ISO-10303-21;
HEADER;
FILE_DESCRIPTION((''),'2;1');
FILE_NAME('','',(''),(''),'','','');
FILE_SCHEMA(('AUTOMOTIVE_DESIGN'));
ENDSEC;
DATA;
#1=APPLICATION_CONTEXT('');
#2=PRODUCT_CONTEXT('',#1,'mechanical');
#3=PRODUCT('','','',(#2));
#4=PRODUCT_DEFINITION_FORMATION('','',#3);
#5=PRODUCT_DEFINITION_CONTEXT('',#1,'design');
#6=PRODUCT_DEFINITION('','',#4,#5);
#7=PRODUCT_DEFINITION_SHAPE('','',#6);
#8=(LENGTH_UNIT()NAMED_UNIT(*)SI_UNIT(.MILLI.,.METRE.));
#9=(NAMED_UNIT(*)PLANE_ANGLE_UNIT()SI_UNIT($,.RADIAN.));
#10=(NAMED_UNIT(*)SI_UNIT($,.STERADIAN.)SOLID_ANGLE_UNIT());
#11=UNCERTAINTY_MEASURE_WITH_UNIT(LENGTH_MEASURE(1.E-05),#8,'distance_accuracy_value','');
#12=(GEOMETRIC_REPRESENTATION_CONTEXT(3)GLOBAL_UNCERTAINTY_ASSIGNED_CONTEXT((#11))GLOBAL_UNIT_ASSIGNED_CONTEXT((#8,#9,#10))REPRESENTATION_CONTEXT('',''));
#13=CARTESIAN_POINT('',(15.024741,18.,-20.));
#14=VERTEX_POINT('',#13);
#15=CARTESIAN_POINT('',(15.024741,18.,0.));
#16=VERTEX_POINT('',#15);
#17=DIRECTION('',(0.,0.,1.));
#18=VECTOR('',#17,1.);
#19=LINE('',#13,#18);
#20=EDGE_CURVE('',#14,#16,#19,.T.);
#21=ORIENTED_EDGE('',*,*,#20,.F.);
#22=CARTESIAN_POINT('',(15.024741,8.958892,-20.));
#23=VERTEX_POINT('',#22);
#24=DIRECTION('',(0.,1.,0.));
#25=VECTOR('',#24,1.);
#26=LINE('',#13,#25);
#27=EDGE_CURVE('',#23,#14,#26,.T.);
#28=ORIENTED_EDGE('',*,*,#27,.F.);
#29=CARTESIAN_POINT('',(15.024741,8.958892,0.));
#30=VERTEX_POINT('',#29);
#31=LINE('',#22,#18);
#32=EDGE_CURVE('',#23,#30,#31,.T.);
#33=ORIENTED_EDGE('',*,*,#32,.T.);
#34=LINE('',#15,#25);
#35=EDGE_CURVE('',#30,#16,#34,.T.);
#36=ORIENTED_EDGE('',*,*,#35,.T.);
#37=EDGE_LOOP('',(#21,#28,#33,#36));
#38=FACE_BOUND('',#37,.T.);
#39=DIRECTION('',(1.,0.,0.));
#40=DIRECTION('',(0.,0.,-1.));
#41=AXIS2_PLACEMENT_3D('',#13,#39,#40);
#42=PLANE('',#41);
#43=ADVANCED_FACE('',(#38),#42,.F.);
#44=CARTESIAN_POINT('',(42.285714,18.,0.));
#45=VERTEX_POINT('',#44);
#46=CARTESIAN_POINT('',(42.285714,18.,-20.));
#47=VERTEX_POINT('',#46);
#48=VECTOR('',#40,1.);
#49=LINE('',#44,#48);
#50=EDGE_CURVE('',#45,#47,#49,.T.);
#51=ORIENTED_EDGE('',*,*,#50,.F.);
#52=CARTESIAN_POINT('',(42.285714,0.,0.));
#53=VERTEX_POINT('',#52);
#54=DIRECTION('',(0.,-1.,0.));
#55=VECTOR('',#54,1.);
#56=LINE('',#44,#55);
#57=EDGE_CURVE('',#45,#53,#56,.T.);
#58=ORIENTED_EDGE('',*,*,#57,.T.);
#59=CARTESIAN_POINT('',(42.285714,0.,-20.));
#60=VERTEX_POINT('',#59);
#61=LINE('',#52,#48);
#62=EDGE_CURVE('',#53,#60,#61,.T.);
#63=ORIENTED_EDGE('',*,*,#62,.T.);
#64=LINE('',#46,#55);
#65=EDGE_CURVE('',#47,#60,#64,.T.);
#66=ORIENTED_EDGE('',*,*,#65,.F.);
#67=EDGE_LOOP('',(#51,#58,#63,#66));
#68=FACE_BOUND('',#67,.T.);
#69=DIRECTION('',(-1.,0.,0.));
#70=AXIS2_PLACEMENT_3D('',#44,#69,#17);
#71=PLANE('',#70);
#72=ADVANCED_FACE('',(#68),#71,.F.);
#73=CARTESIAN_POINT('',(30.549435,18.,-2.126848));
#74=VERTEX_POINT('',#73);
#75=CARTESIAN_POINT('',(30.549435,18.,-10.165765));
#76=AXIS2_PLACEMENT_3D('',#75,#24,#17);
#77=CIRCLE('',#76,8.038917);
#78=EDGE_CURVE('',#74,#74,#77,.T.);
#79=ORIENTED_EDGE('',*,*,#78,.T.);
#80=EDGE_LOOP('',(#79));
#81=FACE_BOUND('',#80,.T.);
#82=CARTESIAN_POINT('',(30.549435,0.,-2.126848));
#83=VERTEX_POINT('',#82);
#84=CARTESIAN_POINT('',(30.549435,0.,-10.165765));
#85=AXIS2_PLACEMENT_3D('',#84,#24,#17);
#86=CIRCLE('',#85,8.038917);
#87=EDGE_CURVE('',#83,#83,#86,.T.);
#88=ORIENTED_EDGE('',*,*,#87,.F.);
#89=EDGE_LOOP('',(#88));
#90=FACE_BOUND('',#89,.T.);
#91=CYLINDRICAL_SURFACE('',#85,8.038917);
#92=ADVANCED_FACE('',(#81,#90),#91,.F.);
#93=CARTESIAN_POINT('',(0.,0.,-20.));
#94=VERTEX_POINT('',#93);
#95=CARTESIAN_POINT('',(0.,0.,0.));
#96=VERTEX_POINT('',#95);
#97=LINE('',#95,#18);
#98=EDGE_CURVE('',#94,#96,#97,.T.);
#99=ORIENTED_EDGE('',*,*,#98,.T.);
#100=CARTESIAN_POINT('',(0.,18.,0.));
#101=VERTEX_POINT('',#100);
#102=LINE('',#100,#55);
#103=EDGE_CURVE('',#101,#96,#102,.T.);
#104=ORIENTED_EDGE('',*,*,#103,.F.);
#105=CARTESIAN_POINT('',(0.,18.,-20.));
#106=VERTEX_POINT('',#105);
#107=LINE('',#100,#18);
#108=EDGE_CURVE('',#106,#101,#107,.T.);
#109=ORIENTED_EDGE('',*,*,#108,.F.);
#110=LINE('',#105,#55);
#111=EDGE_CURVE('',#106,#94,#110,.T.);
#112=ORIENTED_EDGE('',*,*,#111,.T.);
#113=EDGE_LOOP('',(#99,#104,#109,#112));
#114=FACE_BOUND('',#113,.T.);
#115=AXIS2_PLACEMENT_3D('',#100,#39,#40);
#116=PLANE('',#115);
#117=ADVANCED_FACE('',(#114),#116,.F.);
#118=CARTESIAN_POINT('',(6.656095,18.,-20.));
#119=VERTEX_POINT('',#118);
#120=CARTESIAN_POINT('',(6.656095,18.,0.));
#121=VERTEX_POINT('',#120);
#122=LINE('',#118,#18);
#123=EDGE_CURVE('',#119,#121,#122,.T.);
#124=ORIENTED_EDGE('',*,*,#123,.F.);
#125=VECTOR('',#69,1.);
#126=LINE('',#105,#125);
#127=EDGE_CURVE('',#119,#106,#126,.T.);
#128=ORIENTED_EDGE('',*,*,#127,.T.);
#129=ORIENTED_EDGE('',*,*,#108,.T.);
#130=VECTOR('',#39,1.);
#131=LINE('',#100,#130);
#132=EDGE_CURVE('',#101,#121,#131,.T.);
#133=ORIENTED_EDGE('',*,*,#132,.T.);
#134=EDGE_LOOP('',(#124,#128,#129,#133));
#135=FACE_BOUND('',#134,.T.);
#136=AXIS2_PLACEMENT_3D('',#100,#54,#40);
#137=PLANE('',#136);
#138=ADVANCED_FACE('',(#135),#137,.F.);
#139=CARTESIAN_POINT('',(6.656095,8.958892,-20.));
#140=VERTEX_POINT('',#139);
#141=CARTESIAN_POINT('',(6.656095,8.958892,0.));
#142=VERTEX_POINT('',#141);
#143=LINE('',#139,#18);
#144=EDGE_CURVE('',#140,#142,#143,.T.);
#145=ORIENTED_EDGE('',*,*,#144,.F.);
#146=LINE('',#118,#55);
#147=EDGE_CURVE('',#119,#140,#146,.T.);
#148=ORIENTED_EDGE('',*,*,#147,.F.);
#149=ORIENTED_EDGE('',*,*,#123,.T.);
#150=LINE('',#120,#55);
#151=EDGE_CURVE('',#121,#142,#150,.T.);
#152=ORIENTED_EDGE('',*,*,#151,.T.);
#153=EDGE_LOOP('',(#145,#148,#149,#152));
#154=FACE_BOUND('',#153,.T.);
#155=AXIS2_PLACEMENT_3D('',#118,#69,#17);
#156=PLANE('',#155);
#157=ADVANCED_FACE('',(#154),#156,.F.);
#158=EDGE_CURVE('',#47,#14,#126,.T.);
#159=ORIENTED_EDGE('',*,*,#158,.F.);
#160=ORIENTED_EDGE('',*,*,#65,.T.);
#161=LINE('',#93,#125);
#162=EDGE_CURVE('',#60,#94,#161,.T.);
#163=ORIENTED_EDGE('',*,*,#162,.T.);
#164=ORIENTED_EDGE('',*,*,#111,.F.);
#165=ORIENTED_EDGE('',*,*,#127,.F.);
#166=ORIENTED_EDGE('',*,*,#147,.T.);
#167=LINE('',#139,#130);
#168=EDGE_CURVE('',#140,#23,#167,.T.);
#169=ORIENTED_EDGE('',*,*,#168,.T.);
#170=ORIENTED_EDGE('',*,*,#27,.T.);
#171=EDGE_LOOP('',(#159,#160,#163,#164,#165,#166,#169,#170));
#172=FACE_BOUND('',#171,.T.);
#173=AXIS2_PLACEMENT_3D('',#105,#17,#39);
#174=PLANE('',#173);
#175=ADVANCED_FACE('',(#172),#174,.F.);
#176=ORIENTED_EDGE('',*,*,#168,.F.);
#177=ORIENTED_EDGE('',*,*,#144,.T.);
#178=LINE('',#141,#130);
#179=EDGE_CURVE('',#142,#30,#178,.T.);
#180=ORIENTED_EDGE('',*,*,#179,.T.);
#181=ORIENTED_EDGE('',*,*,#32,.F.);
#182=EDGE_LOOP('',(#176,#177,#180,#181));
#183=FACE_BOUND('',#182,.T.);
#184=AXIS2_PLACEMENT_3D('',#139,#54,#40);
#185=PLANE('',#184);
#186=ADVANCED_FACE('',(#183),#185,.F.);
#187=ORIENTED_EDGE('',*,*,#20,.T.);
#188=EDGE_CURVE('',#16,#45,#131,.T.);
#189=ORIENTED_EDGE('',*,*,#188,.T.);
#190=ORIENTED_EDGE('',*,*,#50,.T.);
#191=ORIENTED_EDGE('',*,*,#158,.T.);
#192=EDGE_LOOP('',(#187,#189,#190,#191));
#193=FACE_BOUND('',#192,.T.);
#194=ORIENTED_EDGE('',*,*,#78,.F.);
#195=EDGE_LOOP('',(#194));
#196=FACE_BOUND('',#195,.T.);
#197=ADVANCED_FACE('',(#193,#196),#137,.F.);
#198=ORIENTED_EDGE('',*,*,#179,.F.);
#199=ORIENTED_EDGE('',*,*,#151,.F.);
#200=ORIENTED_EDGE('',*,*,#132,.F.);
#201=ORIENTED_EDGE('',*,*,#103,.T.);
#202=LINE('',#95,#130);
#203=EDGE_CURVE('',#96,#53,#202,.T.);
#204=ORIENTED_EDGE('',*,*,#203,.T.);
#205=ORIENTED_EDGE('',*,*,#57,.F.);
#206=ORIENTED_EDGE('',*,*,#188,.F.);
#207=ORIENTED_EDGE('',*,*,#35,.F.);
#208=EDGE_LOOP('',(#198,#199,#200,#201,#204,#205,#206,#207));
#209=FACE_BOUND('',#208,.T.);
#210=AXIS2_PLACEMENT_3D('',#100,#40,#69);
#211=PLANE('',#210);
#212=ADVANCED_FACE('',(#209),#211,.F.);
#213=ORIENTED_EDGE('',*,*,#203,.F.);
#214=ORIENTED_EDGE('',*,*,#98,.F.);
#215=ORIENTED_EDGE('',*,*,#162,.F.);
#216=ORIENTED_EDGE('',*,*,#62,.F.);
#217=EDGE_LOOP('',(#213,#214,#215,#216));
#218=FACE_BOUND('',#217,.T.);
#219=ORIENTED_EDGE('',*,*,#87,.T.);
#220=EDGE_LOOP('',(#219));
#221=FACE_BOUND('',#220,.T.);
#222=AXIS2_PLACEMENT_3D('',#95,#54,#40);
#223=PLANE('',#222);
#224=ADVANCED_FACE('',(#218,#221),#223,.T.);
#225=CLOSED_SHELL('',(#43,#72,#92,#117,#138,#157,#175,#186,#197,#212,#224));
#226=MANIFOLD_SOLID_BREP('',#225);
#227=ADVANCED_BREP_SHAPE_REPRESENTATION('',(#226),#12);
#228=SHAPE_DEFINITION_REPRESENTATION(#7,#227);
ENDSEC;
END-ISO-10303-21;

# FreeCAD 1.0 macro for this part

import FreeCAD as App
import Part
import Sketcher

V = App.Vector
Q = App.Units.Quantity

doc = App.newDocument("Part")
body = doc.addObject("PartDesign::Body", "Body")

# Sketch on XZ plane
sketch1 = doc.addObject("Sketcher::SketchObject", "Sketch")
body.addObject(sketch1)
sketch1.AttachmentSupport = (doc.XZ_Plane, [""])
sketch1.MapMode = "FlatFace"
sketch1.addGeometry([
    Part.LineSegment(V(0, -20, 0), V(0, 0, 0)),
    Part.LineSegment(V(0, 0, 0), V(42, 0, 0)),
    Part.LineSegment(V(42, 0, 0), V(42, -20, 0)),
    Part.LineSegment(V(42, -20, 0), V(0, -20, 0)),
], False)
sketch1.addConstraint([
    Sketcher.Constraint("Coincident", 0, 2, 1, 1),
    Sketcher.Constraint("Coincident", 1, 2, 2, 1),
    Sketcher.Constraint("Coincident", 2, 2, 3, 1),
    Sketcher.Constraint("Coincident", 3, 2, 0, 1),
    Sketcher.Constraint("Vertical", 0),
    Sketcher.Constraint("Horizontal", 1),
    Sketcher.Constraint("Vertical", 2),
    Sketcher.Constraint("Horizontal", 3),
    Sketcher.Constraint("Coincident", 0, 2, -1, 1),
    Sketcher.Constraint("DistanceY", 0, 1, 0, 2, Q("20 mm")),
    Sketcher.Constraint("DistanceX", 1, 1, 1, 2, Q("42.285714 mm")),
])
pad1 = doc.addObject("PartDesign::Pad", "Pad")
body.addObject(pad1)
pad1.Profile = sketch1
pad1.Length = 18
pad1.Reversed = True

# Sketch on XZ plane
sketch2 = doc.addObject("Sketcher::SketchObject", "Sketch001")
body.addObject(sketch2)
sketch2.AttachmentSupport = (doc.XZ_Plane, [""])
sketch2.MapMode = "FlatFace"
sketch2.AttachmentOffset = App.Placement(V(0, 0, -18), App.Rotation())
sketch2.addGeometry(Part.Circle(V(31, -10, 0), V(0, 0, 1), 8), False)
sketch2.addConstraint([
    Sketcher.Constraint("Diameter", 0, Q("16.077834 mm")),
    Sketcher.Constraint("DistanceX", -1, 1, 0, 3, Q("30.549435 mm")),
    Sketcher.Constraint("DistanceY", 0, 3, -1, 1, Q("10.165765 mm")),
])
pocket1 = doc.addObject("PartDesign::Pocket", "Pocket")
body.addObject(pocket1)
pocket1.Profile = sketch2
pocket1.Length = 18
pocket1.Reversed = True

# Sketch on XY plane
sketch3 = doc.addObject("Sketcher::SketchObject", "Sketch002")
body.addObject(sketch3)
sketch3.AttachmentSupport = (doc.XY_Plane, [""])
sketch3.MapMode = "FlatFace"
sketch3.addGeometry([
    Part.LineSegment(V(7, 18, 0), V(7, 9, 0)),
    Part.LineSegment(V(7, 9, 0), V(15, 9, 0)),
    Part.LineSegment(V(15, 9, 0), V(15, 18, 0)),
    Part.LineSegment(V(15, 18, 0), V(7, 18, 0)),
], False)
sketch3.addConstraint([
    Sketcher.Constraint("Coincident", 0, 2, 1, 1),
    Sketcher.Constraint("Coincident", 1, 2, 2, 1),
    Sketcher.Constraint("Coincident", 2, 2, 3, 1),
    Sketcher.Constraint("Coincident", 3, 2, 0, 1),
    Sketcher.Constraint("Vertical", 0),
    Sketcher.Constraint("Horizontal", 1),
    Sketcher.Constraint("Vertical", 2),
    Sketcher.Constraint("Horizontal", 3),
    Sketcher.Constraint("DistanceY", -1, 1, 2, 2, Q("18 mm")),
    Sketcher.Constraint("DistanceX", 1, 1, 1, 2, Q("8.368646 mm")),
    Sketcher.Constraint("DistanceY", 0, 2, 0, 1, Q("9.041108 mm")),
    Sketcher.Constraint("DistanceX", -1, 1, 1, 2, Q("15.024741 mm")),
])
pocket2 = doc.addObject("PartDesign::Pocket", "Pocket001")
body.addObject(pocket2)
pocket2.Profile = sketch3
pocket2.Length = 20

doc.recompute()
